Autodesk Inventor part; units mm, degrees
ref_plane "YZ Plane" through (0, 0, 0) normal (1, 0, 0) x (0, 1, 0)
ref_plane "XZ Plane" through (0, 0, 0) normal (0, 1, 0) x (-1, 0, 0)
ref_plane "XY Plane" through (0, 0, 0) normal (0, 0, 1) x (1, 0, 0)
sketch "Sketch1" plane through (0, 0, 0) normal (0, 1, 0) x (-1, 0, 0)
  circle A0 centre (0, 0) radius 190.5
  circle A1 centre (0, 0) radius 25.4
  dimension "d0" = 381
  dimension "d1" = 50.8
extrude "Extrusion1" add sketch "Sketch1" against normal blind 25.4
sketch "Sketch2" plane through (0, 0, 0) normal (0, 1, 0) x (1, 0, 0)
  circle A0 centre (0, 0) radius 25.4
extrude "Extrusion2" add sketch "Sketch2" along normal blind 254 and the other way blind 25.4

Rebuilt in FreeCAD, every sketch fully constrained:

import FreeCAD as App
import Part
import Sketcher
Q = App.Units.Quantity

doc = App.newDocument("Part")
params = doc.addObject("Spreadsheet::Sheet", "Params")
for row, (alias, value) in enumerate([
    ("sketch1_diameter", "15 in"),
    ("sketch1_diameter2", "2 in"),
    ("pad1_length", "1 in"),
    ("sketch2_diameter", "2 in"),
    ("pad2_length", "10 in"),
    ("pad2_length2", "1 in"),
], start=1):
    params.set(f"A{row}", alias)
    params.set(f"B{row}", "=" + value)
    params.setAlias(f"B{row}", alias)

body = doc.addObject("PartDesign::Body", "Body")

sketch1 = doc.addObject("Sketcher::SketchObject", "Sketch")
body.addObject(sketch1)
sketch1.AttachmentSupport = (doc.XZ_Plane, [""])
sketch1.MapMode = "FlatFace"
sketch1.addGeometry([
    Part.Circle(App.Vector(0, 0, 0), App.Vector(0, 0, 1), 190.5),
    Part.Circle(App.Vector(0, 0, 0), App.Vector(0, 0, 1), 25.4),
], False)
sketch1.addConstraint([
    Sketcher.Constraint("Coincident", 0, 3, -1, 1),
    Sketcher.Constraint("Coincident", 1, 3, -1, 1),
    Sketcher.Constraint("Diameter", 0, Q("15 in")),
    Sketcher.Constraint("Diameter", 1, Q("2 in")),
])
sketch1.setExpression("Constraints[2]", "Params.sketch1_diameter")
sketch1.setExpression("Constraints[3]", "Params.sketch1_diameter2")
pad1 = doc.addObject("PartDesign::Pad", "Pad")
body.addObject(pad1)
pad1.Profile = sketch1
pad1.setExpression("Length", "Params.pad1_length")

sketch2 = doc.addObject("Sketcher::SketchObject", "Sketch001")
body.addObject(sketch2)
sketch2.AttachmentSupport = (doc.XZ_Plane, [""])
sketch2.MapMode = "FlatFace"
sketch2.addGeometry(Part.Circle(App.Vector(0, 0, 0), App.Vector(0, 0, 1), 25.4), False)
sketch2.addConstraint([
    Sketcher.Constraint("Coincident", 0, 3, -1, 1),
    Sketcher.Constraint("Diameter", 0, Q("2 in")),
])
sketch2.setExpression("Constraints[1]", "Params.sketch2_diameter")
pad2 = doc.addObject("PartDesign::Pad", "Pad001")
body.addObject(pad2)
pad2.Profile = sketch2
pad2.Type = "TwoLengths"
pad2.setExpression("Length", "Params.pad2_length")
pad2.setExpression("Length2", "Params.pad2_length2")
pad2.Reversed = True

doc.recompute()
